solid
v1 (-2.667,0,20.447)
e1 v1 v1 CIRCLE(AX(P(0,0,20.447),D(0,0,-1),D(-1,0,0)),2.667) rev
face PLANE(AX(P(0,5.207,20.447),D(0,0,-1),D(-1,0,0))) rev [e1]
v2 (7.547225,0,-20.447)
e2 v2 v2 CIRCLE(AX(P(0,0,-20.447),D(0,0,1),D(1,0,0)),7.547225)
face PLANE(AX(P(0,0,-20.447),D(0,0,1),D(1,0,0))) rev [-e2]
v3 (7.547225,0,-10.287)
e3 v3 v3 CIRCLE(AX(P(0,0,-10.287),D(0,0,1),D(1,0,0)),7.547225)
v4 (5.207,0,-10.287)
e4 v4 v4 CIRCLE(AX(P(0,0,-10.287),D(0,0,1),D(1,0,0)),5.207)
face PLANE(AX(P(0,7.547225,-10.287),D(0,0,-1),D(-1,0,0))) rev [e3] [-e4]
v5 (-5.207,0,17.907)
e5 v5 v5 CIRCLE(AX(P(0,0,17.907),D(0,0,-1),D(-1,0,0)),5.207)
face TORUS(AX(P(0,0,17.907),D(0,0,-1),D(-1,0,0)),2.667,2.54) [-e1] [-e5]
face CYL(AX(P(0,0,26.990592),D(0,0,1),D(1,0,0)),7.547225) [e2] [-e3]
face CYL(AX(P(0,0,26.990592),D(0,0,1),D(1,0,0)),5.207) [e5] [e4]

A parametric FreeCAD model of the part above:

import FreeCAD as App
import Part
import Sketcher
from FreeCAD import Vector
Q = App.Units.Quantity


def edges_at(feature, points):
    """Names of the edges that pass closest to the given points."""
    edges = feature.Shape.Edges
    near = lambda p: min(range(len(edges)), key=lambda i: edges[i].distToShape(Part.Vertex(*p))[0])
    return sorted({f"Edge{near(p) + 1}" for p in points})


def add_polygon(sketch, points):
    """Adds a closed chain of lines whose ends are joined by coincident constraints."""
    first, n = sketch.GeometryCount, len(points)
    for a, b in zip(points, points[1:] + points[:1]):
        sketch.addGeometry(Part.LineSegment(App.Vector(*a, 0), App.Vector(*b, 0)), False)
    for i in range(n):
        sketch.addConstraint(Sketcher.Constraint("Coincident", first + i, 2, first + (i + 1) % n, 1))

doc = App.newDocument("Part")
params = doc.addObject("Spreadsheet::Sheet", "Params")
for row, (alias, value) in enumerate([
    ("sketch1_height", "0.4 in"),
    ("sketch1_height2", "1.21 in"),
    ("sketch1_width", "0.205 in"),
    ("revolution_angle", "360 deg"),
    ("fillet_radius", "0.1 in"),
], start=1):
    params.set(f"A{row}", alias)
    params.set(f"B{row}", "=" + value)
    params.setAlias(f"B{row}", alias)

body = doc.addObject("PartDesign::Body", "Body")

sketch1 = body.newObject("Sketcher::SketchObject", "Sketch")
sketch1.AttachmentSupport = (doc.getObject("YZ_Plane"), [""])
sketch1.MapMode = "FlatFace"
add_polygon(sketch1, [(0, -20.4), (7.5, -20.4), (7.5, -10.3), (5.2, -10.3), (5.2, 20.4), (0, 20.4)])
sketch1.addConstraint([
    Sketcher.Constraint("Horizontal", 0),
    Sketcher.Constraint("Vertical", 1),
    Sketcher.Constraint("Horizontal", 2),
    Sketcher.Constraint("Vertical", 3),
    Sketcher.Constraint("Horizontal", 4),
    Sketcher.Constraint("Vertical", 5),
    Sketcher.Constraint("Symmetric", 4, 2, 5, 2, -1, 1),
    Sketcher.Constraint("DistanceY", 1, 1, 1, 2, Q("0.4 in")),
    Sketcher.Constraint("DistanceY", 3, 1, 3, 2, Q("1.21 in")),
    Sketcher.Constraint("DistanceX", 4, 2, 4, 1, Q("0.205 in")),
    Sketcher.Constraint("DistanceX", 0, 1, 0, 2, 7.547225),
])
sketch1.setExpression("Constraints[13]", "Params.sketch1_height")
sketch1.setExpression("Constraints[14]", "Params.sketch1_height2")
sketch1.setExpression("Constraints[15]", "Params.sketch1_width")
revolution = body.newObject("PartDesign::Revolution", "Revolution")
revolution.Profile = sketch1
revolution.ReferenceAxis = (sketch1, ["V_Axis"])
revolution.setExpression("Angle", "Params.revolution_angle")
doc.recompute()

fillet = body.newObject("PartDesign::Fillet", "Fillet")
fillet.Base = (revolution, edges_at(revolution, [(-5.207, 0, 20.447)]))
fillet.setExpression("Radius", "Params.fillet_radius")

doc.recompute()
